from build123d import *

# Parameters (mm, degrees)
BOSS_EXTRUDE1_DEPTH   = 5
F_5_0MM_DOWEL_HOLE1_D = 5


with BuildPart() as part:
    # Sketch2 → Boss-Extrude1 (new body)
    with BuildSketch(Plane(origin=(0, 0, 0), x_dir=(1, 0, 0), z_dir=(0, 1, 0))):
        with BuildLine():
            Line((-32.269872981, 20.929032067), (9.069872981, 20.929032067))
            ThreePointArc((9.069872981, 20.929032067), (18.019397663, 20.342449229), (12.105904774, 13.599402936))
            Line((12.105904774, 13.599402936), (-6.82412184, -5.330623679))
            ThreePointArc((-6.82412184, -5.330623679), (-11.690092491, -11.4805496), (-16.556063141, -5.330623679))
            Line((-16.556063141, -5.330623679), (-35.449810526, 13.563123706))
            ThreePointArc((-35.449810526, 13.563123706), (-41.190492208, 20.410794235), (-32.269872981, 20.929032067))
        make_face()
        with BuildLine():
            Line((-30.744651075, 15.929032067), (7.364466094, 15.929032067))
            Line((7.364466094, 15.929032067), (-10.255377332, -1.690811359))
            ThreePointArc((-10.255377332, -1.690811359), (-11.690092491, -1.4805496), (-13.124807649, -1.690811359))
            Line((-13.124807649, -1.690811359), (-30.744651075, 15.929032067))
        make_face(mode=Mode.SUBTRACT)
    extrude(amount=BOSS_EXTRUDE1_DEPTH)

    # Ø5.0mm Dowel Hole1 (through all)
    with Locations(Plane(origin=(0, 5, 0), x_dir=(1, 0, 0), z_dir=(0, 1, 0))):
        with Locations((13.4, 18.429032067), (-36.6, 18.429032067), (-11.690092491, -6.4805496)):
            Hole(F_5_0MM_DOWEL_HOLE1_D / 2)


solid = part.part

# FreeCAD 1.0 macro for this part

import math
import FreeCAD as App
import Part
import Sketcher
from FreeCAD import Vector

doc = App.newDocument("Part")
body = doc.addObject("PartDesign::Body", "Body")

sketch1 = body.newObject("Sketcher::SketchObject", "Sketch")
sketch1.AttachmentSupport = (doc.getObject("XZ_Plane"), [""])
sketch1.MapMode = "FlatFace"
sketch1.addGeometry(Part.LineSegment(Vector(9.069873, -20.929032, 0), Vector(-32.269873, -20.929032, 0)), False)
sketch1.addGeometry(Part.ArcOfCircle(Part.Circle(Vector(-36.6, -18.429032, 0), Vector(0, 0, 1), 5), math.radians(76.700697), math.radians(330)), False)
sketch1.addGeometry(Part.LineSegment(Vector(-35.449811, -13.563124, 0), Vector(-16.556063, 5.330624, 0)), False)
sketch1.addGeometry(Part.ArcOfCircle(Part.Circle(Vector(-11.690092, 6.48055, 0), Vector(0, 0, 1), 5), math.radians(-13.296199), math.radians(193.296199)), False)
sketch1.addGeometry(Part.LineSegment(Vector(-6.824122, 5.330624, 0), Vector(12.105905, -13.599403, 0)), False)
sketch1.addGeometry(Part.ArcOfCircle(Part.Circle(Vector(13.4, -18.429032, 0), Vector(0, 0, 1), 5), math.radians(-150), math.radians(105)), False)
sketch1.addGeometry(Part.LineSegment(Vector(-30.744651, -15.929032, 0), Vector(7.364466, -15.929032, 0)), False)
sketch1.addGeometry(Part.LineSegment(Vector(7.364466, -15.929032, 0), Vector(-10.255377, 1.690811, 0)), False)
sketch1.addGeometry(Part.ArcOfCircle(Part.Circle(Vector(-11.690092, 6.48055, 0), Vector(0, 0, 1), 5), math.radians(-106.675028), math.radians(-73.324972)), False)
sketch1.addGeometry(Part.LineSegment(Vector(-13.124808, 1.690811, 0), Vector(-30.744651, -15.929032, 0)), False)
sketch1.addConstraint(Sketcher.Constraint("Coincident", 0, 2, 1, 2))
sketch1.addConstraint(Sketcher.Constraint("Coincident", 1, 1, 2, 1))
sketch1.addConstraint(Sketcher.Constraint("Coincident", 2, 2, 3, 2))
sketch1.addConstraint(Sketcher.Constraint("Coincident", 3, 1, 4, 1))
sketch1.addConstraint(Sketcher.Constraint("Coincident", 4, 2, 5, 2))
sketch1.addConstraint(Sketcher.Constraint("Coincident", 5, 1, 0, 1))
sketch1.addConstraint(Sketcher.Constraint("Coincident", 6, 2, 7, 1))
sketch1.addConstraint(Sketcher.Constraint("Coincident", 7, 2, 8, 2))
sketch1.addConstraint(Sketcher.Constraint("Coincident", 8, 1, 9, 1))
sketch1.addConstraint(Sketcher.Constraint("Coincident", 9, 2, 6, 1))
sketch1.addConstraint(Sketcher.Constraint("Horizontal", 0))
sketch1.addConstraint(Sketcher.Constraint("Horizontal", 6))
sketch1.addConstraint(Sketcher.Constraint("Coincident", 8, 3, 3, 3))
sketch1.addConstraint(Sketcher.Constraint("Equal", 1, 3))
sketch1.addConstraint(Sketcher.Constraint("Equal", 3, 5))
sketch1.addConstraint(Sketcher.Constraint("Equal", 5, 8))
sketch1.addConstraint(Sketcher.Constraint("Perpendicular", 2, 4))
sketch1.addConstraint(Sketcher.Constraint("Parallel", 4, 7))
sketch1.addConstraint(Sketcher.Constraint("Perpendicular", 7, 9))
sketch1.addConstraint(Sketcher.Constraint("Horizontal", 1, 3, 5, 3))
sketch1.addConstraint(Sketcher.Constraint("Horizontal", 2, 2, 3, 1))
sketch1.addConstraint(Sketcher.Constraint("Horizontal", 7, 2, 8, 1))
sketch1.addConstraint(Sketcher.Constraint("Equal", 7, 9))
sketch1.addConstraint(Sketcher.Constraint("Radius", 1, 5.0))
sketch1.addConstraint(Sketcher.Constraint("DistanceX", 1, 3, 5, 3, 50.0))
sketch1.addConstraint(Sketcher.Constraint("DistanceY", 5, 1, 6, 2, 5.0))
sketch1.addConstraint(Sketcher.Constraint("DistanceX", 1, 3, -1, 1, 36.6))
sketch1.addConstraint(Sketcher.Constraint("DistanceY", 0, 2, 1, 3, 2.5))
sketch1.addConstraint(Sketcher.Constraint("Distance", 4, 26.7711))
sketch1.addConstraint(Sketcher.Constraint("Distance", 7, 24.918222))
sketch1.addConstraint(Sketcher.Constraint("DistanceX", 6, 1, 6, 2, 38.109117))
sketch1.addConstraint(Sketcher.Constraint("DistanceY", -1, 1, 3, 3, 6.48055))
sketch1.addConstraint(Sketcher.Constraint("DistanceX", 1, 1, -1, 1, 35.449811))
pad1 = body.newObject("PartDesign::Pad", "Pad")
pad1.Profile = sketch1
pad1.Length = 5
pad1.Reversed = True

sketch2 = body.newObject("Sketcher::SketchObject", "Sketch001")
sketch2.AttachmentSupport = (doc.getObject("XZ_Plane"), [""])
sketch2.MapMode = "FlatFace"
sketch2.AttachmentOffset = App.Placement(Vector(0, 0, -5), App.Rotation())
sketch2.addGeometry(Part.Circle(Vector(13.4, -18.429032, 0), Vector(0, 0, 1), 2.5), False)
sketch2.addGeometry(Part.Circle(Vector(-36.6, -18.429032, 0), Vector(0, 0, 1), 2.5), False)
sketch2.addGeometry(Part.Circle(Vector(-11.690092, 6.48055, 0), Vector(0, 0, 1), 2.5), False)
sketch2.addConstraint(Sketcher.Constraint("Equal", 0, 1))
sketch2.addConstraint(Sketcher.Constraint("Equal", 1, 2))
sketch2.addConstraint(Sketcher.Constraint("Horizontal", 0, 3, 1, 3))
sketch2.addConstraint(Sketcher.Constraint("Diameter", 0, 5.0))
sketch2.addConstraint(Sketcher.Constraint("DistanceX", 1, 3, 0, 3, 50.0))
sketch2.addConstraint(Sketcher.Constraint("DistanceX", -1, 1, 0, 3, 13.4))
sketch2.addConstraint(Sketcher.Constraint("DistanceY", -1, 1, 2, 3, 6.48055))
sketch2.addConstraint(Sketcher.Constraint("DistanceY", 1, 3, 2, 3, 24.909582))
sketch2.addConstraint(Sketcher.Constraint("DistanceX", 2, 3, -1, 1, 11.690092))
doc.recompute()
hole = body.newObject("PartDesign::Hole", "Hole")
hole.Profile = sketch2
hole.ThreadType = "None"
hole.Diameter = 5
hole.DepthType = "ThroughAll"
hole.Reversed = True

doc.recompute()
